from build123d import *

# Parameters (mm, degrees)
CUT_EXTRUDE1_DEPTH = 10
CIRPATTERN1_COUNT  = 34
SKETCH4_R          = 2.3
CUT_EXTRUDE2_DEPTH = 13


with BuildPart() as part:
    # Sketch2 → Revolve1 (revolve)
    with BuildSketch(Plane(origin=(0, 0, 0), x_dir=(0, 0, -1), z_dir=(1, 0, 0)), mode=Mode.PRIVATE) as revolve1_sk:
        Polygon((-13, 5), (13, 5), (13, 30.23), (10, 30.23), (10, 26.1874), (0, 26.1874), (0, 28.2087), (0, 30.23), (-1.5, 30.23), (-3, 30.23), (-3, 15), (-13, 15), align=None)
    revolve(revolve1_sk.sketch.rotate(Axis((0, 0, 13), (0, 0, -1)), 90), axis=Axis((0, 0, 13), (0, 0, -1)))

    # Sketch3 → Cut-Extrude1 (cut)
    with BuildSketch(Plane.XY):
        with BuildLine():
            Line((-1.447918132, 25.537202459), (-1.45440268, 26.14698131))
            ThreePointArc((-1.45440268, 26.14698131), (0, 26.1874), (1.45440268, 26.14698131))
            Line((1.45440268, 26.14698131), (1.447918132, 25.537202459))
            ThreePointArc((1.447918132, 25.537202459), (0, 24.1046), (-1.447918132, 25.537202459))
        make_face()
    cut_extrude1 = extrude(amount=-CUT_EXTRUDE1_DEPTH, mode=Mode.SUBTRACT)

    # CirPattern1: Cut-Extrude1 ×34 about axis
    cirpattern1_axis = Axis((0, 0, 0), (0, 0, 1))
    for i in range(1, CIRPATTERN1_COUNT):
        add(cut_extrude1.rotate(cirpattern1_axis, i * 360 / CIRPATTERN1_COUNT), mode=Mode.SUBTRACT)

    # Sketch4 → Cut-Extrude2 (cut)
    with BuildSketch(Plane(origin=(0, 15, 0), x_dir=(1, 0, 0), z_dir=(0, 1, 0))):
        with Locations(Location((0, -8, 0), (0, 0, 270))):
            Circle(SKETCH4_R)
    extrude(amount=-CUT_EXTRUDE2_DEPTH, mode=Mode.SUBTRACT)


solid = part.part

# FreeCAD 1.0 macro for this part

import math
import FreeCAD as App
import Part
import Sketcher
from FreeCAD import Vector
Q = App.Units.Quantity

doc = App.newDocument("Part")
params = doc.addObject("Spreadsheet::Sheet", "Params")
for row, (alias, value) in enumerate([
    ("sketch1_width", "10 mm"),
    ("sketch1_height", "26 mm"),
    ("sketch1_width2", "25.23 mm"),
    ("revolution_angle", "360 deg"),
    ("pocket1_length", "10 mm"),
    ("sketch3_diameter", "4.6 mm"),
    ("pocket2_length", "13 mm"),
], start=1):
    params.set(f"A{row}", alias)
    params.set(f"B{row}", "=" + value)
    params.setAlias(f"B{row}", alias)

body = doc.addObject("PartDesign::Body", "Body")

sketch1 = body.newObject("Sketcher::SketchObject", "Sketch")
sketch1.AttachmentSupport = (doc.getObject("YZ_Plane"), [""])
sketch1.MapMode = "FlatFace"
sketch1.addGeometry([
    Part.LineSegment(Vector(5, 13, 0), Vector(5, -13, 0)),
    Part.LineSegment(Vector(5, -13, 0), Vector(30.23, -13, 0)),
    Part.LineSegment(Vector(30.23, -13, 0), Vector(30.23, -10, 0)),
    Part.LineSegment(Vector(30.23, -10, 0), Vector(26.1874, -10, 0)),
    Part.LineSegment(Vector(26.1874, -10, 0), Vector(26.1874, 0, 0)),
    Part.LineSegment(Vector(26.1874, 0, 0), Vector(30.23, 0, 0)),
    Part.LineSegment(Vector(30.23, 0, 0), Vector(30.23, 3, 0)),
    Part.LineSegment(Vector(30.23, 3, 0), Vector(15, 3, 0)),
    Part.LineSegment(Vector(15, 3, 0), Vector(15, 13, 0)),
    Part.LineSegment(Vector(15, 13, 0), Vector(5, 13, 0)),
], False)
sketch1.addConstraint([
    Sketcher.Constraint("Coincident", 0, 2, 1, 1),
    Sketcher.Constraint("Coincident", 1, 2, 2, 1),
    Sketcher.Constraint("Coincident", 2, 2, 3, 1),
    Sketcher.Constraint("Coincident", 3, 2, 4, 1),
    Sketcher.Constraint("Coincident", 4, 2, 5, 1),
    Sketcher.Constraint("Coincident", 5, 2, 6, 1),
    Sketcher.Constraint("Coincident", 6, 2, 7, 1),
    Sketcher.Constraint("Coincident", 7, 2, 8, 1),
    Sketcher.Constraint("Coincident", 8, 2, 9, 1),
    Sketcher.Constraint("Coincident", 9, 2, 0, 1),
    Sketcher.Constraint("Vertical", 0),
    Sketcher.Constraint("Horizontal", 1),
    Sketcher.Constraint("Vertical", 2),
    Sketcher.Constraint("Horizontal", 3),
    Sketcher.Constraint("Vertical", 4),
    Sketcher.Constraint("Horizontal", 5),
    Sketcher.Constraint("Vertical", 6),
    Sketcher.Constraint("Horizontal", 7),
    Sketcher.Constraint("Vertical", 8),
    Sketcher.Constraint("Horizontal", 9),
    Sketcher.Constraint("PointOnObject", 4, 2, -1),
    Sketcher.Constraint("Vertical", 2, 2, 5, 2),
    Sketcher.Constraint("Equal", 9, 4),
    Sketcher.Constraint("Equal", 2, 6),
    Sketcher.Constraint("Equal", 4, 8),
    Sketcher.Constraint("DistanceX", 9, 2, 9, 1, Q("10 mm")),
    Sketcher.Constraint("DistanceY", 0, 2, 0, 1, Q("26 mm")),
    Sketcher.Constraint("DistanceX", -1, 1, 0, 2, Q("5 mm")),
    Sketcher.Constraint("DistanceX", 1, 1, 1, 2, Q("25.23 mm")),
    Sketcher.Constraint("DistanceX", 3, 2, 3, 1, Q("4.0426 mm")),
])
sketch1.setExpression("Constraints[25]", "Params.sketch1_width")
sketch1.setExpression("Constraints[26]", "Params.sketch1_height")
sketch1.setExpression("Constraints[28]", "Params.sketch1_width2")
revolution = body.newObject("PartDesign::Revolution", "Revolution")
revolution.Profile = sketch1
revolution.ReferenceAxis = (sketch1, ["V_Axis"])
revolution.setExpression("Angle", "Params.revolution_angle")

sketch2 = body.newObject("Sketcher::SketchObject", "Sketch001")
sketch2.AttachmentSupport = (doc.getObject("XY_Plane"), [""])
sketch2.MapMode = "FlatFace"
sketch2.addGeometry([
    Part.LineSegment(Vector(-1.454403, 26.146981, 0), Vector(-1.447918, 25.537202, 0)),
    Part.ArcOfCircle(Part.Circle(Vector(0, 25.5526, 0), Vector(0, 0, 1), 1.448), math.radians(-179.390725), math.radians(-0.609275)),
    Part.LineSegment(Vector(1.447918, 25.537202, 0), Vector(1.454403, 26.146981, 0)),
    Part.ArcOfCircle(Part.Circle(Vector(0, 0, 0), Vector(0, 0, 1), 26.1874), math.radians(86.816254), math.radians(93.183746)),
], False)
sketch2.addConstraint([
    Sketcher.Constraint("Tangent", 0, 2, 1, 1),
    Sketcher.Constraint("Tangent", 1, 2, 2, 1),
    Sketcher.Constraint("Coincident", 2, 2, 3, 1),
    Sketcher.Constraint("Coincident", 3, 2, 0, 1),
    Sketcher.Constraint("Coincident", 3, 3, -1, 1),
    Sketcher.Constraint("Symmetric", 0, 2, 1, 2, -2),
    Sketcher.Constraint("Radius", 1, Q("1.448 mm")),
    Sketcher.Constraint("Radius", 3, Q("26.1874 mm")),
    Sketcher.Constraint("DistanceY", -1, 1, 1, 3, Q("25.5526 mm")),
    Sketcher.Constraint("DistanceX", 0, 2, -1, 1, Q("1.447918 mm")),
])
pocket1 = body.newObject("PartDesign::Pocket", "Pocket")
pocket1.Profile = sketch2
pocket1.setExpression("Length", "Params.pocket1_length")
doc.recompute()

polarpattern = body.newObject("PartDesign::PolarPattern", "PolarPattern")
polarpattern.Originals = [pocket1]
polarpattern.Axis = (doc.getObject("Z_Axis"), [""])
polarpattern.Angle = 360
polarpattern.Occurrences = 34
body.Tip = polarpattern

sketch3 = body.newObject("Sketcher::SketchObject", "Sketch002")
sketch3.AttachmentSupport = (doc.getObject("XZ_Plane"), [""])
sketch3.MapMode = "FlatFace"
sketch3.AttachmentOffset = App.Placement(Vector(0, 0, -15), App.Rotation())
sketch3.addGeometry(Part.Circle(Vector(0, 8, 0), Vector(0, 0, 1), 2.3), False)
sketch3.addConstraint([
    Sketcher.Constraint("PointOnObject", 0, 3, -2),
    Sketcher.Constraint("Diameter", 0, Q("4.6 mm")),
    Sketcher.Constraint("DistanceY", -1, 1, 0, 3, Q("8 mm")),
])
sketch3.setExpression("Constraints[1]", "Params.sketch3_diameter")
pocket2 = body.newObject("PartDesign::Pocket", "Pocket001")
pocket2.Profile = sketch3
pocket2.setExpression("Length", "Params.pocket2_length")
pocket2.Reversed = True

doc.recompute()
